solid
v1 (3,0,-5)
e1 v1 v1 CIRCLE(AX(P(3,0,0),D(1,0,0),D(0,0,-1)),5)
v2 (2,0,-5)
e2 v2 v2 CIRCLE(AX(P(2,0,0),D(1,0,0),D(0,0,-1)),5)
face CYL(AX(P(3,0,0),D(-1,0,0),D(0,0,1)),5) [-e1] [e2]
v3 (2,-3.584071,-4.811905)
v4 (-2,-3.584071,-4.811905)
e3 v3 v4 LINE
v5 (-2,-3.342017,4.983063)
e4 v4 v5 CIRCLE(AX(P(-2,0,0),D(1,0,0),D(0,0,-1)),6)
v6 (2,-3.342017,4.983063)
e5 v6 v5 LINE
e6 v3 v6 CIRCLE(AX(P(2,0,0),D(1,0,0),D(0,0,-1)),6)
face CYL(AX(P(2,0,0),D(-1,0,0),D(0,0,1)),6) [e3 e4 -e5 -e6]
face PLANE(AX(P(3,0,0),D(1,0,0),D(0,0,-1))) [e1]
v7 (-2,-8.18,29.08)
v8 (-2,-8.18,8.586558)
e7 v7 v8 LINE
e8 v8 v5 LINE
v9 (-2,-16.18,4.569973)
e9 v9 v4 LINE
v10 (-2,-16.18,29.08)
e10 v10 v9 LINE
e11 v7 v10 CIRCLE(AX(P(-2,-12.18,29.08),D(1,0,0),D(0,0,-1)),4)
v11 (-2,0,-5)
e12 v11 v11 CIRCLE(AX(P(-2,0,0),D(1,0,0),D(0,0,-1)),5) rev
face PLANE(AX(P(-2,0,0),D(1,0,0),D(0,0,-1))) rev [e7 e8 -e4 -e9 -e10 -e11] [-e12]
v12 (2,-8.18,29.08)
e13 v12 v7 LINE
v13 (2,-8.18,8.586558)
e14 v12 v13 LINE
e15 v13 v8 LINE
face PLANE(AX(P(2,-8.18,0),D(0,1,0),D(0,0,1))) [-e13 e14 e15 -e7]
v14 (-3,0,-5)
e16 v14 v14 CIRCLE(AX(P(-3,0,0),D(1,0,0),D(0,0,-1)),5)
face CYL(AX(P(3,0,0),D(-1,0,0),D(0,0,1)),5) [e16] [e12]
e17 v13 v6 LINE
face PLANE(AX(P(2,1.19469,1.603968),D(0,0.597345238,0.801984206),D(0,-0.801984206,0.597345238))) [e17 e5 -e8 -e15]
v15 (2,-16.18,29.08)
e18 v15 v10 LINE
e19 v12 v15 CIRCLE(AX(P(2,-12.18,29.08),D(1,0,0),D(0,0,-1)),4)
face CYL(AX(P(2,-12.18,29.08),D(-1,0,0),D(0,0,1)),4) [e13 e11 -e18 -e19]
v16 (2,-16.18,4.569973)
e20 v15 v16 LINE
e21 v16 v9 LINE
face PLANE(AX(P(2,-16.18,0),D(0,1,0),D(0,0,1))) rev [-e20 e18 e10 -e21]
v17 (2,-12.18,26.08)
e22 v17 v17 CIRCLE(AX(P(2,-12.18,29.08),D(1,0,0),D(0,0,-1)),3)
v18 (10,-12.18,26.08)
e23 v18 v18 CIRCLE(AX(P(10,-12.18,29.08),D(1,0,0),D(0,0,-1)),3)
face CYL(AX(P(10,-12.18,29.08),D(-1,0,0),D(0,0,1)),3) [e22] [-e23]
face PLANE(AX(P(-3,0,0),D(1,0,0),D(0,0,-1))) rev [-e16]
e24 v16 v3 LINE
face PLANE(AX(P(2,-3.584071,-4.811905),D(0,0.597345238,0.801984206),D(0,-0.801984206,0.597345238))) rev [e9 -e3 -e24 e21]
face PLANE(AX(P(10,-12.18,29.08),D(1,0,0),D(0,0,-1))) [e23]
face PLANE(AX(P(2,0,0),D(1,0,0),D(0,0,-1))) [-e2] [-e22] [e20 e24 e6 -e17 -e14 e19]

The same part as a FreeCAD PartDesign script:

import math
import FreeCAD as App
import Part
import Sketcher

V = App.Vector
Q = App.Units.Quantity

doc = App.newDocument("Part")
params = doc.addObject("Spreadsheet::Sheet", "Params")
for row, (alias, value) in enumerate([
    ("sketch1_diameter", "6 mm"),
    ("sketch1_diameter2", "10 mm"),
    ("sketch1_radius", "6 mm"),
    ("sketch1_radius2", "4 mm"),
    ("pad1_length", "4 mm"),
    ("sketch2_diameter", "10 mm"),
    ("pad2_length", "6 mm"),
    ("sketch3_diameter", "6 mm"),
    ("pad3_length", "12 mm"),
], start=1):
    params.set(f"A{row}", alias)
    params.set(f"B{row}", "=" + value)
    params.setAlias(f"B{row}", alias)

body = doc.addObject("PartDesign::Body", "Body")

# Sketch on YZ plane
sketch1 = body.newObject("Sketcher::SketchObject", "Sketch")
sketch1.AttachmentSupport = (doc.getObject("YZ_Plane"), [""])
sketch1.MapMode = "FlatFace"
sketch1.addGeometry(Part.LineSegment(V(-16.2, 29.1, 0), V(-16.2, 4.6, 0)), False)
sketch1.addGeometry(Part.LineSegment(V(-16.2, 4.6, 0), V(-3.6, -4.8, 0)), False)
sketch1.addGeometry(Part.ArcOfCircle(Part.Circle(V(0, 0, 0), V(0, 0, 1), 6), math.radians(-127), math.radians(124)), False)
sketch1.addGeometry(Part.LineSegment(V(-3.3, 5, 0), V(-8.2, 8.6, 0)), False)
sketch1.addGeometry(Part.LineSegment(V(-8.2, 8.6, 0), V(-8.2, 29.1, 0)), False)
sketch1.addGeometry(Part.ArcOfCircle(Part.Circle(V(-12.2, 29.1, 0), V(0, 0, 1), 4), math.radians(0), math.radians(180)), False)
sketch1.addGeometry(Part.Circle(V(-12.2, 29.1, 0), V(0, 0, 1), 3), False)
sketch1.addGeometry(Part.Circle(V(0, 0, 0), V(0, 0, 1), 5), False)
sketch1.addConstraint(Sketcher.Constraint("Coincident", 0, 2, 1, 1))
sketch1.addConstraint(Sketcher.Constraint("Tangent", 1, 2, 2, 1))
sketch1.addConstraint(Sketcher.Constraint("Coincident", 2, 2, 3, 1))
sketch1.addConstraint(Sketcher.Constraint("Coincident", 3, 2, 4, 1))
sketch1.addConstraint(Sketcher.Constraint("Tangent", 4, 2, 5, 1))
sketch1.addConstraint(Sketcher.Constraint("Tangent", 5, 2, 0, 1))
sketch1.addConstraint(Sketcher.Constraint("Vertical", 0))
sketch1.addConstraint(Sketcher.Constraint("Vertical", 4))
sketch1.addConstraint(Sketcher.Constraint("Coincident", 2, 3, -1, 1))
sketch1.addConstraint(Sketcher.Constraint("Coincident", 7, 3, -1, 1))
sketch1.addConstraint(Sketcher.Constraint("Coincident", 6, 3, 5, 3))
sketch1.addConstraint(Sketcher.Constraint("Parallel", 1, 3))
sketch1.addConstraint(Sketcher.Constraint("Diameter", 6, Q("6 mm")))
sketch1.addConstraint(Sketcher.Constraint("Diameter", 7, Q("10 mm")))
sketch1.addConstraint(Sketcher.Constraint("Radius", 2, Q("6 mm")))
sketch1.addConstraint(Sketcher.Constraint("Radius", 5, Q("4 mm")))
sketch1.addConstraint(Sketcher.Constraint("Angle", 1, Q("-36.68 deg")))
sketch1.addConstraint(Sketcher.Constraint("DistanceX", 5, 3, -1, 1, Q("12.18 mm")))
sketch1.addConstraint(Sketcher.Constraint("DistanceY", -1, 1, 5, 3, Q("29.08 mm")))
sketch1.addConstraint(Sketcher.Constraint("DistanceY", 4, 1, 4, 2, Q("20.493442 mm")))
sketch1.setExpression("Constraints[12]", "Params.sketch1_diameter")
sketch1.setExpression("Constraints[13]", "Params.sketch1_diameter2")
sketch1.setExpression("Constraints[14]", "Params.sketch1_radius")
sketch1.setExpression("Constraints[15]", "Params.sketch1_radius2")
pad1 = body.newObject("PartDesign::Pad", "Pad")
pad1.Profile = sketch1
pad1.setExpression("Length", "Params.pad1_length")
pad1.Midplane = True

# Sketch on YZ plane
sketch2 = body.newObject("Sketcher::SketchObject", "Sketch001")
sketch2.AttachmentSupport = (doc.getObject("YZ_Plane"), [""])
sketch2.MapMode = "FlatFace"
sketch2.addGeometry(Part.Circle(V(0, 0, 0), V(0, 0, 1), 5), False)
sketch2.addConstraint(Sketcher.Constraint("Coincident", 0, 3, -1, 1))
sketch2.addConstraint(Sketcher.Constraint("Diameter", 0, Q("10 mm")))
sketch2.setExpression("Constraints[1]", "Params.sketch2_diameter")
pad2 = body.newObject("PartDesign::Pad", "Pad001")
pad2.Profile = sketch2
pad2.setExpression("Length", "Params.pad2_length")
pad2.Midplane = True

# Sketch on YZ plane
sketch3 = body.newObject("Sketcher::SketchObject", "Sketch002")
sketch3.AttachmentSupport = (doc.getObject("YZ_Plane"), [""])
sketch3.MapMode = "FlatFace"
sketch3.AttachmentOffset = App.Placement(V(0, 0, -2), App.Rotation())
sketch3.addGeometry(Part.Circle(V(-12.2, 29.1, 0), V(0, 0, 1), 3), False)
sketch3.addConstraint(Sketcher.Constraint("Diameter", 0, Q("6 mm")))
sketch3.addConstraint(Sketcher.Constraint("DistanceX", 0, 3, -1, 1, Q("12.18 mm")))
sketch3.addConstraint(Sketcher.Constraint("DistanceY", -1, 1, 0, 3, Q("29.08 mm")))
sketch3.setExpression("Constraints[0]", "Params.sketch3_diameter")
pad3 = body.newObject("PartDesign::Pad", "Pad002")
pad3.Profile = sketch3
pad3.setExpression("Length", "Params.pad3_length")

doc.recompute()
